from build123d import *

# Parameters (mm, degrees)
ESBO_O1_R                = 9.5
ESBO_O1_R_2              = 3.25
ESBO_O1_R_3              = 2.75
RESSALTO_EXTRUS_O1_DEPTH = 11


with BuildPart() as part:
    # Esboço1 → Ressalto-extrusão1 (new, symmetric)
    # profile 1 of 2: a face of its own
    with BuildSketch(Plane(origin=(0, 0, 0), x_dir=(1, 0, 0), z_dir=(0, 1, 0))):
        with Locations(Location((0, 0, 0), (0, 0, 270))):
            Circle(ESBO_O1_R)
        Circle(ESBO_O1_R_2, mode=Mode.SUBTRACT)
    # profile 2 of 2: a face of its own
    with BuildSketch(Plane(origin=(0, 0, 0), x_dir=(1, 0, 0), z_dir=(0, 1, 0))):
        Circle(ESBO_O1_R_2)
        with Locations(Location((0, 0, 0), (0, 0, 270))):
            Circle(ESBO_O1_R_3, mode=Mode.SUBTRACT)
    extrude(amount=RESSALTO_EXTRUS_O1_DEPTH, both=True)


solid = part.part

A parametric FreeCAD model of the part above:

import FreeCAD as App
import Part
import Sketcher
Q = App.Units.Quantity

doc = App.newDocument("Part")
body = doc.addObject("PartDesign::Body", "Body")

# Sketch on XZ plane
sketch1 = body.newObject("Sketcher::SketchObject", "Sketch")
sketch1.AttachmentSupport = (doc.getObject("XZ_Plane"), [""])
sketch1.MapMode = "FlatFace"
sketch1.addGeometry(Part.Circle(App.Vector(0, 0, 0), App.Vector(0, 0, 1), 9.5), False)
sketch1.addGeometry(Part.Circle(App.Vector(0, 0, 0), App.Vector(0, 0, 1), 2.75), False)
sketch1.addConstraint(Sketcher.Constraint("Coincident", 0, 3, -1, 1))
sketch1.addConstraint(Sketcher.Constraint("Coincident", 1, 3, -1, 1))
sketch1.addConstraint(Sketcher.Constraint("Diameter", 0, Q("19 mm")))
sketch1.addConstraint(Sketcher.Constraint("Diameter", 1, Q("5.5 mm")))
pad1 = body.newObject("PartDesign::Pad", "Pad")
pad1.Profile = sketch1
pad1.Length = 22
pad1.Midplane = True

doc.recompute()
